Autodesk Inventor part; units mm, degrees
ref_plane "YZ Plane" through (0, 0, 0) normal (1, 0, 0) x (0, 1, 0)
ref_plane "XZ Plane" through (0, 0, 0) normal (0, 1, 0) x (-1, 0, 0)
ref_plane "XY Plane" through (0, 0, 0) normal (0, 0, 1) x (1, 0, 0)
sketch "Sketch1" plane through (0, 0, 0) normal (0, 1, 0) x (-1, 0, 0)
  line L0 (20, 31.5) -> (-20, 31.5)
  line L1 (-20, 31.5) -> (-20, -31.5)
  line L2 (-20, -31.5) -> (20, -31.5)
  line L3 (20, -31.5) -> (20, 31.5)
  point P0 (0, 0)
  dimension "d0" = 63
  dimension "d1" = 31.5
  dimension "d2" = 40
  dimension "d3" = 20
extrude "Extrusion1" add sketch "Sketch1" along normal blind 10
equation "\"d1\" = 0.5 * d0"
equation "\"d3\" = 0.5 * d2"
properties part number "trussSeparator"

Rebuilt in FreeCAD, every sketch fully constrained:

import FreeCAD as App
import Part
import Sketcher

V = App.Vector


def add_polygon(sketch, points):
    """Adds a closed chain of lines whose ends are joined by coincident constraints."""
    first, n = sketch.GeometryCount, len(points)
    for a, b in zip(points, points[1:] + points[:1]):
        sketch.addGeometry(Part.LineSegment(App.Vector(*a, 0), App.Vector(*b, 0)), False)
    for i in range(n):
        sketch.addConstraint(Sketcher.Constraint("Coincident", first + i, 2, first + (i + 1) % n, 1))

doc = App.newDocument("Part")
body = doc.addObject("PartDesign::Body", "Body")

# Sketch on XZ plane
sketch1 = doc.addObject("Sketcher::SketchObject", "Sketch")
body.addObject(sketch1)
sketch1.AttachmentSupport = (doc.XZ_Plane, [""])
sketch1.MapMode = "FlatFace"
add_polygon(sketch1, [(-20, -31.5), (-20, 31.5), (20, 31.5), (20, -31.5)])  # lines 0-3
sketch1.addConstraint([
    Sketcher.Constraint("Vertical", 0),
    Sketcher.Constraint("Horizontal", 1),
    Sketcher.Constraint("Vertical", 2),
    Sketcher.Constraint("Horizontal", 3),
    Sketcher.Constraint("Symmetric", 0, 2, 2, 2, -1, 1),
    Sketcher.Constraint("DistanceX", 1, 1, 1, 2, 40.0),
    Sketcher.Constraint("DistanceY", 0, 1, 0, 2, 63.0),
])
pad1 = doc.addObject("PartDesign::Pad", "Pad")
body.addObject(pad1)
pad1.Profile = sketch1
pad1.Length = 10
pad1.Reversed = True

doc.recompute()
